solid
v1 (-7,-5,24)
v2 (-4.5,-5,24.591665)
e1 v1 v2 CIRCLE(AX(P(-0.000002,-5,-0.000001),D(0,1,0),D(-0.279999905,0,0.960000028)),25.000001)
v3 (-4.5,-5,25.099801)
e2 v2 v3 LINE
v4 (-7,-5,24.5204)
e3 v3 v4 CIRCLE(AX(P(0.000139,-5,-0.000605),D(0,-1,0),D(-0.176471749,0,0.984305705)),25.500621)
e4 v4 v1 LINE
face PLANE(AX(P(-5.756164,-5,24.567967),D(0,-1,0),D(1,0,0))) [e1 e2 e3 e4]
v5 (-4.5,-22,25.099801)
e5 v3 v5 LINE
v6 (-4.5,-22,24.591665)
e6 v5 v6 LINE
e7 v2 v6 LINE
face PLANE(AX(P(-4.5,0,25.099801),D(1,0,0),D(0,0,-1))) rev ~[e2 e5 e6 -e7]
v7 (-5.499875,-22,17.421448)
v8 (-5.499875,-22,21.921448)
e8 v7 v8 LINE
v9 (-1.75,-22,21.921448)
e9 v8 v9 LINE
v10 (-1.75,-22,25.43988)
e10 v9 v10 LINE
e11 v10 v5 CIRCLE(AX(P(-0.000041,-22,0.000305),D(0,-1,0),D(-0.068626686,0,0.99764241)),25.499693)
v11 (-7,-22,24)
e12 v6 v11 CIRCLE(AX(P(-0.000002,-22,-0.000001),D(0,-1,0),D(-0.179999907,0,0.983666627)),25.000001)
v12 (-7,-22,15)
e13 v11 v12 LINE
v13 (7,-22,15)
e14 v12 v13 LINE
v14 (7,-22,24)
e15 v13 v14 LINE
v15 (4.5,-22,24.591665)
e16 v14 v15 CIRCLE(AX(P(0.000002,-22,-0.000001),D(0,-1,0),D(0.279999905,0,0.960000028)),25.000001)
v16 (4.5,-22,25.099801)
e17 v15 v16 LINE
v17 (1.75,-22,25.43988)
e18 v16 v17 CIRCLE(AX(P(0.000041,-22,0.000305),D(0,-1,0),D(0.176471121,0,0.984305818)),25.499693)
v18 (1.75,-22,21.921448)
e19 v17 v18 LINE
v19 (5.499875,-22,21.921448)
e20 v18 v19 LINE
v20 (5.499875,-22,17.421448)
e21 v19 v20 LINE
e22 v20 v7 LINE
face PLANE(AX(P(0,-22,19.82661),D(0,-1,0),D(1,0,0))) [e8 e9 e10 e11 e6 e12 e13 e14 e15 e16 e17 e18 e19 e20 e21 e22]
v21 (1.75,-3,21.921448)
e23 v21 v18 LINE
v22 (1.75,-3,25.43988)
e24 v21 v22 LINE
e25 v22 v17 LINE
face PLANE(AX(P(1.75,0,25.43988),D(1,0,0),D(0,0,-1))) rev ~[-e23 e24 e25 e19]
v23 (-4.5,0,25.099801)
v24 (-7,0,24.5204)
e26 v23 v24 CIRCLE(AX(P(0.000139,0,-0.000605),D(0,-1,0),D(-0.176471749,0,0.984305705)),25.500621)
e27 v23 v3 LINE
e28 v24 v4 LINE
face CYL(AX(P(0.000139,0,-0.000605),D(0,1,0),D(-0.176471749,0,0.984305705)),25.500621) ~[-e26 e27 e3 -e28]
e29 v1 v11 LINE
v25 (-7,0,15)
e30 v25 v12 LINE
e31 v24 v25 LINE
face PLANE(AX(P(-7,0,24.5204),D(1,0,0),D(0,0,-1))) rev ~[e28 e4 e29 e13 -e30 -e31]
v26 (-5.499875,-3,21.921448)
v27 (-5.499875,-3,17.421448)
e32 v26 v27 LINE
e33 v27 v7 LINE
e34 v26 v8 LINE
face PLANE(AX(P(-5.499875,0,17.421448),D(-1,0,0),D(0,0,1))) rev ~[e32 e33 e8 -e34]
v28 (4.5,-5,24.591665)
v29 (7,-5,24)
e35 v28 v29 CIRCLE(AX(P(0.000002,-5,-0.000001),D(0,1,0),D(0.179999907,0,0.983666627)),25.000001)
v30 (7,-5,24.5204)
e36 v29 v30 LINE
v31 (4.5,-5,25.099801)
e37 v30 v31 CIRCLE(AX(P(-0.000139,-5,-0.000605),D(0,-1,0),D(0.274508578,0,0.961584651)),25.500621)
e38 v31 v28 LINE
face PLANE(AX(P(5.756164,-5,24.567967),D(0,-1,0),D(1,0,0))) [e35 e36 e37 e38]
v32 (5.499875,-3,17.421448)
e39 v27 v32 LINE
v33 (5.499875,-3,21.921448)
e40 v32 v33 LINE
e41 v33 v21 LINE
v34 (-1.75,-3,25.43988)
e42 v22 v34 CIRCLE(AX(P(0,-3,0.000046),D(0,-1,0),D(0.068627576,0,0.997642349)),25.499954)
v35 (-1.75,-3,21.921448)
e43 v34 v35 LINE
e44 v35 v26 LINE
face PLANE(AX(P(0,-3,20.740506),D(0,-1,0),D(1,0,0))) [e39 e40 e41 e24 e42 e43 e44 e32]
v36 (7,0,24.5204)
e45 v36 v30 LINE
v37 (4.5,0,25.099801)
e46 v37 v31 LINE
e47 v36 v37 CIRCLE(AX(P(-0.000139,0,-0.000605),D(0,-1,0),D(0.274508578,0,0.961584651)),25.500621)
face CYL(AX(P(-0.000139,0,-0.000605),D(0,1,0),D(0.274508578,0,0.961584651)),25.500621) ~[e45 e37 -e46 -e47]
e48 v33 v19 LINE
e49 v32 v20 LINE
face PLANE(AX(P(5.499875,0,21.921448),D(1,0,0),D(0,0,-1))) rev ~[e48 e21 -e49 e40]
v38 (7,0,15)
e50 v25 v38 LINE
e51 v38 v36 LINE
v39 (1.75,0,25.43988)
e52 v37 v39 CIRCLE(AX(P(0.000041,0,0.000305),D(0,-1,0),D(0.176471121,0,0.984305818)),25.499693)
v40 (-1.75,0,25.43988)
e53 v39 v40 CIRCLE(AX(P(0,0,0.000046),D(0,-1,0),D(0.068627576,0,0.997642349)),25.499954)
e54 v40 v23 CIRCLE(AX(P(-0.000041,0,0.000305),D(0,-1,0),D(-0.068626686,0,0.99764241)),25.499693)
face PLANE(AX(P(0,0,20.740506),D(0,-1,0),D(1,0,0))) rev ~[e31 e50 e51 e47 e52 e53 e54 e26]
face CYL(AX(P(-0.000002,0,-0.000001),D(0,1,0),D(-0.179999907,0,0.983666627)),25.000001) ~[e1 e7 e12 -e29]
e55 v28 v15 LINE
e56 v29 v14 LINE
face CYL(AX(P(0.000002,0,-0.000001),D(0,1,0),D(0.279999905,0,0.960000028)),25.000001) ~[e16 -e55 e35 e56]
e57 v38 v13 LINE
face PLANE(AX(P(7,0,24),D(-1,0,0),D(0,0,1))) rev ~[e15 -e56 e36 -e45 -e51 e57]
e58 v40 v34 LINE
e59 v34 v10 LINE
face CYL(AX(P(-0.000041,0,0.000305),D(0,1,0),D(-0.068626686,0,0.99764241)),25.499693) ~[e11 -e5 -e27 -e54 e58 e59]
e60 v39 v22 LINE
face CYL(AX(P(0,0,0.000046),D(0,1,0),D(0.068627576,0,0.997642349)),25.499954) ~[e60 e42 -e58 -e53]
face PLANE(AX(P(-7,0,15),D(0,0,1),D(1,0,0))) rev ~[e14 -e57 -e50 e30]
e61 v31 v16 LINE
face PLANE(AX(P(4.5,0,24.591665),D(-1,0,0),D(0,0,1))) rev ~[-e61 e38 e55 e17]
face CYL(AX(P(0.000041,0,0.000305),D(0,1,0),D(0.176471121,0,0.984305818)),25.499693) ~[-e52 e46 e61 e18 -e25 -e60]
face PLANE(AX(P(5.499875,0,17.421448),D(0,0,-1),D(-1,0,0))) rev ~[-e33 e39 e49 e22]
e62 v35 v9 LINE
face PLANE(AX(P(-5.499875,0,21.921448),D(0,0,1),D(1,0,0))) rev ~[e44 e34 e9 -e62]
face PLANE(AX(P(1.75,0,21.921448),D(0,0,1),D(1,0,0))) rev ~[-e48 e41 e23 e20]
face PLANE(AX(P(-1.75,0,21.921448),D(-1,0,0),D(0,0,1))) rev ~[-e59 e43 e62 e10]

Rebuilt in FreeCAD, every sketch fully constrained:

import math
import FreeCAD as App
import Part
import Sketcher
Q = App.Units.Quantity

doc = App.newDocument("Part")
params = doc.addObject("Spreadsheet::Sheet", "Params")
for row, (alias, value) in enumerate([
    ("sketch1_radius", "25.000001 mm"),
    ("sketch1_width", "14 mm"),
    ("sketch1_height", "9 mm"),
    ("sketch1_height2", "4.5 mm"),
    ("pad1_length", "22 mm"),
    ("sketch2_radius", "25.000001 mm"),
    ("pad2_length", "5 mm"),
    ("sketch3_radius", "25.000001 mm"),
    ("pad3_length", "5 mm"),
    ("sketch4_height", "4.5 mm"),
    ("pad4_length", "3 mm"),
], start=1):
    params.set(f"A{row}", alias)
    params.set(f"B{row}", "=" + value)
    params.setAlias(f"B{row}", alias)

body = doc.addObject("PartDesign::Body", "Body")

# Sketch on XZ plane
sketch1 = body.newObject("Sketcher::SketchObject", "Sketch")
sketch1.AttachmentSupport = (doc.getObject("XZ_Plane"), [""])
sketch1.MapMode = "FlatFace"
sketch1.addGeometry([
    Part.LineSegment(App.Vector(4.5, 24.591665, 0), App.Vector(4.5, 25.099801, 0)),  # 0
    Part.ArcOfCircle(Part.Circle(App.Vector(0.000041, 0.000305, 0), App.Vector(0, 0, 1), 25.499693), math.radians(79.83572), math.radians(86.064888)),  # 1
    Part.LineSegment(App.Vector(1.75, 25.43988, 0), App.Vector(1.75, 21.921448, 0)),  # 2
    Part.LineSegment(App.Vector(1.75, 21.921448, 0), App.Vector(5.499875, 21.921448, 0)),  # 3
    Part.LineSegment(App.Vector(5.499875, 21.921448, 0), App.Vector(5.499875, 17.421448, 0)),  # 4
    Part.LineSegment(App.Vector(5.499875, 17.421448, 0), App.Vector(-5.499875, 17.421448, 0)),  # 5
    Part.LineSegment(App.Vector(-5.499875, 17.421448, 0), App.Vector(-5.499875, 21.921448, 0)),  # 6
    Part.LineSegment(App.Vector(-5.499875, 21.921448, 0), App.Vector(-1.75, 21.921448, 0)),  # 7
    Part.LineSegment(App.Vector(-1.75, 21.921448, 0), App.Vector(-1.75, 25.43988, 0)),  # 8
    Part.ArcOfCircle(Part.Circle(App.Vector(-0.000041, 0.000305, 0), App.Vector(0, 0, 1), 25.499693), math.radians(93.935112), math.radians(100.16428)),  # 9
    Part.LineSegment(App.Vector(-4.5, 25.099801, 0), App.Vector(-4.5, 24.591665, 0)),  # 10
    Part.ArcOfCircle(Part.Circle(App.Vector(-0.000002, -0.000001, 0), App.Vector(0, 0, 1), 25.000001), math.radians(100.369754), math.radians(106.260199)),  # 11
    Part.LineSegment(App.Vector(-7, 24, 0), App.Vector(-7, 15, 0)),  # 12
    Part.LineSegment(App.Vector(-7, 15, 0), App.Vector(7, 15, 0)),  # 13
    Part.LineSegment(App.Vector(7, 15, 0), App.Vector(7, 24, 0)),  # 14
    Part.ArcOfCircle(Part.Circle(App.Vector(0.000002, -0.000001, 0), App.Vector(0, 0, 1), 25.000001), math.radians(73.739801), math.radians(79.630246)),  # 15
], False)
sketch1.addConstraint([
    Sketcher.Constraint("Coincident", 0, 2, 1, 1),
    Sketcher.Constraint("Coincident", 1, 2, 2, 1),
    Sketcher.Constraint("Coincident", 2, 2, 3, 1),
    Sketcher.Constraint("Coincident", 3, 2, 4, 1),
    Sketcher.Constraint("Coincident", 4, 2, 5, 1),
    Sketcher.Constraint("Coincident", 5, 2, 6, 1),
    Sketcher.Constraint("Coincident", 6, 2, 7, 1),
    Sketcher.Constraint("Coincident", 7, 2, 8, 1),
    Sketcher.Constraint("Coincident", 8, 2, 9, 1),
    Sketcher.Constraint("Coincident", 9, 2, 10, 1),
    Sketcher.Constraint("Coincident", 10, 2, 11, 1),
    Sketcher.Constraint("Coincident", 11, 2, 12, 1),
    Sketcher.Constraint("Coincident", 12, 2, 13, 1),
    Sketcher.Constraint("Coincident", 13, 2, 14, 1),
    Sketcher.Constraint("Coincident", 14, 2, 15, 1),
    Sketcher.Constraint("Coincident", 15, 2, 0, 1),
    Sketcher.Constraint("Vertical", 0),
    Sketcher.Constraint("Vertical", 2),
    Sketcher.Constraint("Horizontal", 3),
    Sketcher.Constraint("Vertical", 4),
    Sketcher.Constraint("Horizontal", 5),
    Sketcher.Constraint("Vertical", 6),
    Sketcher.Constraint("Horizontal", 7),
    Sketcher.Constraint("Vertical", 8),
    Sketcher.Constraint("Vertical", 10),
    Sketcher.Constraint("Vertical", 12),
    Sketcher.Constraint("Horizontal", 13),
    Sketcher.Constraint("Vertical", 14),
    Sketcher.Constraint("Coincident", 11, 3, -1, 1),
    Sketcher.Constraint("Coincident", 15, 3, -1, 1),
    Sketcher.Constraint("Equal", 1, 9),
    Sketcher.Constraint("Equal", 11, 15),
    Sketcher.Constraint("Symmetric", 1, 3, 9, 3, -2),
    Sketcher.Constraint("Symmetric", 3, 2, 6, 2, -2),
    Sketcher.Constraint("Horizontal", 1, 2, 8, 2),
    Sketcher.Constraint("Horizontal", 0, 2, 9, 2),
    Sketcher.Constraint("Horizontal", 11, 2, 14, 2),
    Sketcher.Constraint("Radius", 11, Q("25.000001 mm")),
    Sketcher.Constraint("DistanceX", 13, 1, 13, 2, Q("14 mm")),
    Sketcher.Constraint("DistanceY", 12, 2, 12, 1, Q("9 mm")),
    Sketcher.Constraint("DistanceY", 4, 2, 4, 1, Q("4.5 mm")),
    Sketcher.Constraint("DistanceX", -1, 1, 0, 2, Q("4.5 mm")),
    Sketcher.Constraint("DistanceX", 7, 2, 2, 2, Q("3.5 mm")),
    Sketcher.Constraint("Radius", 1, Q("25.499693 mm")),
    Sketcher.Constraint("DistanceX", 5, 2, 5, 1, Q("10.99975 mm")),
    Sketcher.Constraint("DistanceY", 2, 2, 2, 1, Q("3.518432 mm")),
    Sketcher.Constraint("DistanceY", -1, 1, 0, 2, Q("25.099801 mm")),
    Sketcher.Constraint("DistanceY", -1, 1, 1, 2, Q("25.43988 mm")),
])
sketch1.setExpression("Constraints[37]", "Params.sketch1_radius")
sketch1.setExpression("Constraints[38]", "Params.sketch1_width")
sketch1.setExpression("Constraints[39]", "Params.sketch1_height")
sketch1.setExpression("Constraints[40]", "Params.sketch1_height2")
pad1 = body.newObject("PartDesign::Pad", "Pad")
pad1.Profile = sketch1
pad1.setExpression("Length", "Params.pad1_length")

# Sketch on XZ plane
sketch2 = body.newObject("Sketcher::SketchObject", "Sketch001")
sketch2.AttachmentSupport = (doc.getObject("XZ_Plane"), [""])
sketch2.MapMode = "FlatFace"
sketch2.addGeometry([
    Part.LineSegment(App.Vector(-4.5, 24.6, 0), App.Vector(-4.5, 25.1, 0)),
    Part.ArcOfCircle(Part.Circle(App.Vector(0, 0, 0), App.Vector(0, 0, 1), 25.5), math.radians(100.16), math.radians(105.93)),
    Part.LineSegment(App.Vector(-7, 24.5, 0), App.Vector(-7, 24, 0)),
    Part.ArcOfCircle(Part.Circle(App.Vector(0, 0, 0), App.Vector(0, 0, 1), 25), math.radians(100.37), math.radians(106.26)),
], False)
sketch2.addConstraint([
    Sketcher.Constraint("Coincident", 0, 2, 1, 1),
    Sketcher.Constraint("Coincident", 1, 2, 2, 1),
    Sketcher.Constraint("Coincident", 2, 2, 3, 2),
    Sketcher.Constraint("Coincident", 3, 1, 0, 1),
    Sketcher.Constraint("Vertical", 0),
    Sketcher.Constraint("Vertical", 2),
    Sketcher.Constraint("Coincident", 3, 3, -1, 1),
    Sketcher.Constraint("Radius", 3, Q("25.000001 mm")),
    Sketcher.Constraint("DistanceX", 1, 2, -1, 1, Q("7 mm")),
    Sketcher.Constraint("DistanceX", 0, 2, -1, 1, Q("4.5 mm")),
    Sketcher.Constraint("Radius", 1, Q("25.500621 mm")),
    Sketcher.Constraint("DistanceY", 2, 2, 2, 1, Q("0.5204 mm")),
    Sketcher.Constraint("DistanceY", -1, 1, 0, 2, Q("25.099801 mm")),
])
sketch2.setExpression("Constraints[7]", "Params.sketch2_radius")
pad2 = body.newObject("PartDesign::Pad", "Pad001")
pad2.Profile = sketch2
pad2.setExpression("Length", "Params.pad2_length")

# Sketch on XZ plane
sketch3 = body.newObject("Sketcher::SketchObject", "Sketch002")
sketch3.AttachmentSupport = (doc.getObject("XZ_Plane"), [""])
sketch3.MapMode = "FlatFace"
sketch3.addGeometry([
    Part.LineSegment(App.Vector(7, 24, 0), App.Vector(7, 24.5, 0)),
    Part.ArcOfCircle(Part.Circle(App.Vector(0, 0, 0), App.Vector(0, 0, 1), 25.5), math.radians(74.07), math.radians(79.84)),
    Part.LineSegment(App.Vector(4.5, 25.1, 0), App.Vector(4.5, 24.6, 0)),
    Part.ArcOfCircle(Part.Circle(App.Vector(0, 0, 0), App.Vector(0, 0, 1), 25), math.radians(73.74), math.radians(79.63)),
], False)
sketch3.addConstraint([
    Sketcher.Constraint("Coincident", 0, 2, 1, 1),
    Sketcher.Constraint("Coincident", 1, 2, 2, 1),
    Sketcher.Constraint("Coincident", 2, 2, 3, 2),
    Sketcher.Constraint("Coincident", 3, 1, 0, 1),
    Sketcher.Constraint("Vertical", 0),
    Sketcher.Constraint("Vertical", 2),
    Sketcher.Constraint("Coincident", 3, 3, -1, 1),
    Sketcher.Constraint("Radius", 3, Q("25.000001 mm")),
    Sketcher.Constraint("DistanceX", -1, 1, 0, 2, Q("7 mm")),
    Sketcher.Constraint("DistanceX", -1, 1, 1, 2, Q("4.5 mm")),
    Sketcher.Constraint("Radius", 1, Q("25.500621 mm")),
    Sketcher.Constraint("DistanceY", 0, 1, 0, 2, Q("0.5204 mm")),
    Sketcher.Constraint("DistanceY", -1, 1, 1, 2, Q("25.099801 mm")),
])
sketch3.setExpression("Constraints[7]", "Params.sketch3_radius")
pad3 = body.newObject("PartDesign::Pad", "Pad002")
pad3.Profile = sketch3
pad3.setExpression("Length", "Params.pad3_length")

# Sketch on XZ plane
sketch4 = body.newObject("Sketcher::SketchObject", "Sketch003")
sketch4.AttachmentSupport = (doc.getObject("XZ_Plane"), [""])
sketch4.MapMode = "FlatFace"
sketch4.addGeometry([
    Part.LineSegment(App.Vector(1.8, 21.9, 0), App.Vector(1.8, 25.4, 0)),  # 0
    Part.ArcOfCircle(Part.Circle(App.Vector(0, 0, 0), App.Vector(0, 0, 1), 25.5), math.radians(86.06), math.radians(93.94)),  # 1
    Part.LineSegment(App.Vector(-1.8, 25.4, 0), App.Vector(-1.8, 21.9, 0)),  # 2
    Part.LineSegment(App.Vector(-1.8, 21.9, 0), App.Vector(-5.5, 21.9, 0)),  # 3
    Part.LineSegment(App.Vector(-5.5, 21.9, 0), App.Vector(-5.5, 17.4, 0)),  # 4
    Part.LineSegment(App.Vector(-5.5, 17.4, 0), App.Vector(5.5, 17.4, 0)),  # 5
    Part.LineSegment(App.Vector(5.5, 17.4, 0), App.Vector(5.5, 21.9, 0)),  # 6
    Part.LineSegment(App.Vector(5.5, 21.9, 0), App.Vector(1.8, 21.9, 0)),  # 7
], False)
sketch4.addConstraint([
    Sketcher.Constraint("Coincident", 0, 2, 1, 1),
    Sketcher.Constraint("Coincident", 1, 2, 2, 1),
    Sketcher.Constraint("Coincident", 2, 2, 3, 1),
    Sketcher.Constraint("Coincident", 3, 2, 4, 1),
    Sketcher.Constraint("Coincident", 4, 2, 5, 1),
    Sketcher.Constraint("Coincident", 5, 2, 6, 1),
    Sketcher.Constraint("Coincident", 6, 2, 7, 1),
    Sketcher.Constraint("Coincident", 7, 2, 0, 1),
    Sketcher.Constraint("Vertical", 0),
    Sketcher.Constraint("Vertical", 2),
    Sketcher.Constraint("Horizontal", 3),
    Sketcher.Constraint("Vertical", 4),
    Sketcher.Constraint("Horizontal", 5),
    Sketcher.Constraint("Vertical", 6),
    Sketcher.Constraint("Horizontal", 7),
    Sketcher.Constraint("Symmetric", 0, 2, 1, 2, -2),
    Sketcher.Constraint("Symmetric", 3, 2, 6, 2, -2),
    Sketcher.Constraint("DistanceY", 4, 2, 4, 1, Q("4.5 mm")),
    Sketcher.Constraint("DistanceX", 1, 2, 0, 2, Q("3.5 mm")),
    Sketcher.Constraint("Radius", 1, Q("25.499954 mm")),
    Sketcher.Constraint("DistanceX", 5, 1, 5, 2, Q("10.99975 mm")),
    Sketcher.Constraint("DistanceY", 0, 1, 0, 2, Q("3.518432 mm")),
    Sketcher.Constraint("DistanceY", -1, 1, 0, 2, Q("25.43988 mm")),
])
sketch4.setExpression("Constraints[17]", "Params.sketch4_height")
pad4 = body.newObject("PartDesign::Pad", "Pad003")
pad4.Profile = sketch4
pad4.setExpression("Length", "Params.pad4_length")

doc.recompute()
